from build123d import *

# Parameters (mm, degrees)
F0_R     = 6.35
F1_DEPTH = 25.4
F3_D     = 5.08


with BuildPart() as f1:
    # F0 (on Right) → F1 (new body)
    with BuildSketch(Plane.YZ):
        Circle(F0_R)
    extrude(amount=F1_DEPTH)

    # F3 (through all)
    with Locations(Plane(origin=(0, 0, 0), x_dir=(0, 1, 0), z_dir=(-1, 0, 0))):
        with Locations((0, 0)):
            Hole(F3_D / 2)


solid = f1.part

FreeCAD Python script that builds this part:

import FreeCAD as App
import Part
import Sketcher

V = App.Vector
Q = App.Units.Quantity

doc = App.newDocument("Part")
body = doc.addObject("PartDesign::Body", "Body")

# Sketch on YZ plane
sketch1 = body.newObject("Sketcher::SketchObject", "Sketch")
sketch1.AttachmentSupport = (doc.getObject("YZ_Plane"), [""])
sketch1.MapMode = "FlatFace"
sketch1.addGeometry(Part.Circle(V(0, 0, 0), V(0, 0, 1), 6), False)
sketch1.addConstraint(Sketcher.Constraint("Coincident", 0, 3, -1, 1))
sketch1.addConstraint(Sketcher.Constraint("Diameter", 0, Q("0.5 in")))
pad1 = body.newObject("PartDesign::Pad", "Pad")
pad1.Profile = sketch1
pad1.Length = Q("1 in")

# Sketch on YZ plane
sketch2 = body.newObject("Sketcher::SketchObject", "Sketch001")
sketch2.AttachmentSupport = (doc.getObject("YZ_Plane"), [""])
sketch2.MapMode = "FlatFace"
sketch2.addGeometry(Part.Circle(V(0, 0, 0), V(0, 0, 1), 2.5), False)
sketch2.addConstraint(Sketcher.Constraint("Coincident", 0, 3, -1, 1))
sketch2.addConstraint(Sketcher.Constraint("Diameter", 0, Q("0.2 in")))
doc.recompute()
hole = body.newObject("PartDesign::Hole", "Hole")
hole.Profile = sketch2
hole.ThreadType = "None"
hole.Diameter = Q("0.2 in")
hole.DepthType = "ThroughAll"
hole.Reversed = True

doc.recompute()
